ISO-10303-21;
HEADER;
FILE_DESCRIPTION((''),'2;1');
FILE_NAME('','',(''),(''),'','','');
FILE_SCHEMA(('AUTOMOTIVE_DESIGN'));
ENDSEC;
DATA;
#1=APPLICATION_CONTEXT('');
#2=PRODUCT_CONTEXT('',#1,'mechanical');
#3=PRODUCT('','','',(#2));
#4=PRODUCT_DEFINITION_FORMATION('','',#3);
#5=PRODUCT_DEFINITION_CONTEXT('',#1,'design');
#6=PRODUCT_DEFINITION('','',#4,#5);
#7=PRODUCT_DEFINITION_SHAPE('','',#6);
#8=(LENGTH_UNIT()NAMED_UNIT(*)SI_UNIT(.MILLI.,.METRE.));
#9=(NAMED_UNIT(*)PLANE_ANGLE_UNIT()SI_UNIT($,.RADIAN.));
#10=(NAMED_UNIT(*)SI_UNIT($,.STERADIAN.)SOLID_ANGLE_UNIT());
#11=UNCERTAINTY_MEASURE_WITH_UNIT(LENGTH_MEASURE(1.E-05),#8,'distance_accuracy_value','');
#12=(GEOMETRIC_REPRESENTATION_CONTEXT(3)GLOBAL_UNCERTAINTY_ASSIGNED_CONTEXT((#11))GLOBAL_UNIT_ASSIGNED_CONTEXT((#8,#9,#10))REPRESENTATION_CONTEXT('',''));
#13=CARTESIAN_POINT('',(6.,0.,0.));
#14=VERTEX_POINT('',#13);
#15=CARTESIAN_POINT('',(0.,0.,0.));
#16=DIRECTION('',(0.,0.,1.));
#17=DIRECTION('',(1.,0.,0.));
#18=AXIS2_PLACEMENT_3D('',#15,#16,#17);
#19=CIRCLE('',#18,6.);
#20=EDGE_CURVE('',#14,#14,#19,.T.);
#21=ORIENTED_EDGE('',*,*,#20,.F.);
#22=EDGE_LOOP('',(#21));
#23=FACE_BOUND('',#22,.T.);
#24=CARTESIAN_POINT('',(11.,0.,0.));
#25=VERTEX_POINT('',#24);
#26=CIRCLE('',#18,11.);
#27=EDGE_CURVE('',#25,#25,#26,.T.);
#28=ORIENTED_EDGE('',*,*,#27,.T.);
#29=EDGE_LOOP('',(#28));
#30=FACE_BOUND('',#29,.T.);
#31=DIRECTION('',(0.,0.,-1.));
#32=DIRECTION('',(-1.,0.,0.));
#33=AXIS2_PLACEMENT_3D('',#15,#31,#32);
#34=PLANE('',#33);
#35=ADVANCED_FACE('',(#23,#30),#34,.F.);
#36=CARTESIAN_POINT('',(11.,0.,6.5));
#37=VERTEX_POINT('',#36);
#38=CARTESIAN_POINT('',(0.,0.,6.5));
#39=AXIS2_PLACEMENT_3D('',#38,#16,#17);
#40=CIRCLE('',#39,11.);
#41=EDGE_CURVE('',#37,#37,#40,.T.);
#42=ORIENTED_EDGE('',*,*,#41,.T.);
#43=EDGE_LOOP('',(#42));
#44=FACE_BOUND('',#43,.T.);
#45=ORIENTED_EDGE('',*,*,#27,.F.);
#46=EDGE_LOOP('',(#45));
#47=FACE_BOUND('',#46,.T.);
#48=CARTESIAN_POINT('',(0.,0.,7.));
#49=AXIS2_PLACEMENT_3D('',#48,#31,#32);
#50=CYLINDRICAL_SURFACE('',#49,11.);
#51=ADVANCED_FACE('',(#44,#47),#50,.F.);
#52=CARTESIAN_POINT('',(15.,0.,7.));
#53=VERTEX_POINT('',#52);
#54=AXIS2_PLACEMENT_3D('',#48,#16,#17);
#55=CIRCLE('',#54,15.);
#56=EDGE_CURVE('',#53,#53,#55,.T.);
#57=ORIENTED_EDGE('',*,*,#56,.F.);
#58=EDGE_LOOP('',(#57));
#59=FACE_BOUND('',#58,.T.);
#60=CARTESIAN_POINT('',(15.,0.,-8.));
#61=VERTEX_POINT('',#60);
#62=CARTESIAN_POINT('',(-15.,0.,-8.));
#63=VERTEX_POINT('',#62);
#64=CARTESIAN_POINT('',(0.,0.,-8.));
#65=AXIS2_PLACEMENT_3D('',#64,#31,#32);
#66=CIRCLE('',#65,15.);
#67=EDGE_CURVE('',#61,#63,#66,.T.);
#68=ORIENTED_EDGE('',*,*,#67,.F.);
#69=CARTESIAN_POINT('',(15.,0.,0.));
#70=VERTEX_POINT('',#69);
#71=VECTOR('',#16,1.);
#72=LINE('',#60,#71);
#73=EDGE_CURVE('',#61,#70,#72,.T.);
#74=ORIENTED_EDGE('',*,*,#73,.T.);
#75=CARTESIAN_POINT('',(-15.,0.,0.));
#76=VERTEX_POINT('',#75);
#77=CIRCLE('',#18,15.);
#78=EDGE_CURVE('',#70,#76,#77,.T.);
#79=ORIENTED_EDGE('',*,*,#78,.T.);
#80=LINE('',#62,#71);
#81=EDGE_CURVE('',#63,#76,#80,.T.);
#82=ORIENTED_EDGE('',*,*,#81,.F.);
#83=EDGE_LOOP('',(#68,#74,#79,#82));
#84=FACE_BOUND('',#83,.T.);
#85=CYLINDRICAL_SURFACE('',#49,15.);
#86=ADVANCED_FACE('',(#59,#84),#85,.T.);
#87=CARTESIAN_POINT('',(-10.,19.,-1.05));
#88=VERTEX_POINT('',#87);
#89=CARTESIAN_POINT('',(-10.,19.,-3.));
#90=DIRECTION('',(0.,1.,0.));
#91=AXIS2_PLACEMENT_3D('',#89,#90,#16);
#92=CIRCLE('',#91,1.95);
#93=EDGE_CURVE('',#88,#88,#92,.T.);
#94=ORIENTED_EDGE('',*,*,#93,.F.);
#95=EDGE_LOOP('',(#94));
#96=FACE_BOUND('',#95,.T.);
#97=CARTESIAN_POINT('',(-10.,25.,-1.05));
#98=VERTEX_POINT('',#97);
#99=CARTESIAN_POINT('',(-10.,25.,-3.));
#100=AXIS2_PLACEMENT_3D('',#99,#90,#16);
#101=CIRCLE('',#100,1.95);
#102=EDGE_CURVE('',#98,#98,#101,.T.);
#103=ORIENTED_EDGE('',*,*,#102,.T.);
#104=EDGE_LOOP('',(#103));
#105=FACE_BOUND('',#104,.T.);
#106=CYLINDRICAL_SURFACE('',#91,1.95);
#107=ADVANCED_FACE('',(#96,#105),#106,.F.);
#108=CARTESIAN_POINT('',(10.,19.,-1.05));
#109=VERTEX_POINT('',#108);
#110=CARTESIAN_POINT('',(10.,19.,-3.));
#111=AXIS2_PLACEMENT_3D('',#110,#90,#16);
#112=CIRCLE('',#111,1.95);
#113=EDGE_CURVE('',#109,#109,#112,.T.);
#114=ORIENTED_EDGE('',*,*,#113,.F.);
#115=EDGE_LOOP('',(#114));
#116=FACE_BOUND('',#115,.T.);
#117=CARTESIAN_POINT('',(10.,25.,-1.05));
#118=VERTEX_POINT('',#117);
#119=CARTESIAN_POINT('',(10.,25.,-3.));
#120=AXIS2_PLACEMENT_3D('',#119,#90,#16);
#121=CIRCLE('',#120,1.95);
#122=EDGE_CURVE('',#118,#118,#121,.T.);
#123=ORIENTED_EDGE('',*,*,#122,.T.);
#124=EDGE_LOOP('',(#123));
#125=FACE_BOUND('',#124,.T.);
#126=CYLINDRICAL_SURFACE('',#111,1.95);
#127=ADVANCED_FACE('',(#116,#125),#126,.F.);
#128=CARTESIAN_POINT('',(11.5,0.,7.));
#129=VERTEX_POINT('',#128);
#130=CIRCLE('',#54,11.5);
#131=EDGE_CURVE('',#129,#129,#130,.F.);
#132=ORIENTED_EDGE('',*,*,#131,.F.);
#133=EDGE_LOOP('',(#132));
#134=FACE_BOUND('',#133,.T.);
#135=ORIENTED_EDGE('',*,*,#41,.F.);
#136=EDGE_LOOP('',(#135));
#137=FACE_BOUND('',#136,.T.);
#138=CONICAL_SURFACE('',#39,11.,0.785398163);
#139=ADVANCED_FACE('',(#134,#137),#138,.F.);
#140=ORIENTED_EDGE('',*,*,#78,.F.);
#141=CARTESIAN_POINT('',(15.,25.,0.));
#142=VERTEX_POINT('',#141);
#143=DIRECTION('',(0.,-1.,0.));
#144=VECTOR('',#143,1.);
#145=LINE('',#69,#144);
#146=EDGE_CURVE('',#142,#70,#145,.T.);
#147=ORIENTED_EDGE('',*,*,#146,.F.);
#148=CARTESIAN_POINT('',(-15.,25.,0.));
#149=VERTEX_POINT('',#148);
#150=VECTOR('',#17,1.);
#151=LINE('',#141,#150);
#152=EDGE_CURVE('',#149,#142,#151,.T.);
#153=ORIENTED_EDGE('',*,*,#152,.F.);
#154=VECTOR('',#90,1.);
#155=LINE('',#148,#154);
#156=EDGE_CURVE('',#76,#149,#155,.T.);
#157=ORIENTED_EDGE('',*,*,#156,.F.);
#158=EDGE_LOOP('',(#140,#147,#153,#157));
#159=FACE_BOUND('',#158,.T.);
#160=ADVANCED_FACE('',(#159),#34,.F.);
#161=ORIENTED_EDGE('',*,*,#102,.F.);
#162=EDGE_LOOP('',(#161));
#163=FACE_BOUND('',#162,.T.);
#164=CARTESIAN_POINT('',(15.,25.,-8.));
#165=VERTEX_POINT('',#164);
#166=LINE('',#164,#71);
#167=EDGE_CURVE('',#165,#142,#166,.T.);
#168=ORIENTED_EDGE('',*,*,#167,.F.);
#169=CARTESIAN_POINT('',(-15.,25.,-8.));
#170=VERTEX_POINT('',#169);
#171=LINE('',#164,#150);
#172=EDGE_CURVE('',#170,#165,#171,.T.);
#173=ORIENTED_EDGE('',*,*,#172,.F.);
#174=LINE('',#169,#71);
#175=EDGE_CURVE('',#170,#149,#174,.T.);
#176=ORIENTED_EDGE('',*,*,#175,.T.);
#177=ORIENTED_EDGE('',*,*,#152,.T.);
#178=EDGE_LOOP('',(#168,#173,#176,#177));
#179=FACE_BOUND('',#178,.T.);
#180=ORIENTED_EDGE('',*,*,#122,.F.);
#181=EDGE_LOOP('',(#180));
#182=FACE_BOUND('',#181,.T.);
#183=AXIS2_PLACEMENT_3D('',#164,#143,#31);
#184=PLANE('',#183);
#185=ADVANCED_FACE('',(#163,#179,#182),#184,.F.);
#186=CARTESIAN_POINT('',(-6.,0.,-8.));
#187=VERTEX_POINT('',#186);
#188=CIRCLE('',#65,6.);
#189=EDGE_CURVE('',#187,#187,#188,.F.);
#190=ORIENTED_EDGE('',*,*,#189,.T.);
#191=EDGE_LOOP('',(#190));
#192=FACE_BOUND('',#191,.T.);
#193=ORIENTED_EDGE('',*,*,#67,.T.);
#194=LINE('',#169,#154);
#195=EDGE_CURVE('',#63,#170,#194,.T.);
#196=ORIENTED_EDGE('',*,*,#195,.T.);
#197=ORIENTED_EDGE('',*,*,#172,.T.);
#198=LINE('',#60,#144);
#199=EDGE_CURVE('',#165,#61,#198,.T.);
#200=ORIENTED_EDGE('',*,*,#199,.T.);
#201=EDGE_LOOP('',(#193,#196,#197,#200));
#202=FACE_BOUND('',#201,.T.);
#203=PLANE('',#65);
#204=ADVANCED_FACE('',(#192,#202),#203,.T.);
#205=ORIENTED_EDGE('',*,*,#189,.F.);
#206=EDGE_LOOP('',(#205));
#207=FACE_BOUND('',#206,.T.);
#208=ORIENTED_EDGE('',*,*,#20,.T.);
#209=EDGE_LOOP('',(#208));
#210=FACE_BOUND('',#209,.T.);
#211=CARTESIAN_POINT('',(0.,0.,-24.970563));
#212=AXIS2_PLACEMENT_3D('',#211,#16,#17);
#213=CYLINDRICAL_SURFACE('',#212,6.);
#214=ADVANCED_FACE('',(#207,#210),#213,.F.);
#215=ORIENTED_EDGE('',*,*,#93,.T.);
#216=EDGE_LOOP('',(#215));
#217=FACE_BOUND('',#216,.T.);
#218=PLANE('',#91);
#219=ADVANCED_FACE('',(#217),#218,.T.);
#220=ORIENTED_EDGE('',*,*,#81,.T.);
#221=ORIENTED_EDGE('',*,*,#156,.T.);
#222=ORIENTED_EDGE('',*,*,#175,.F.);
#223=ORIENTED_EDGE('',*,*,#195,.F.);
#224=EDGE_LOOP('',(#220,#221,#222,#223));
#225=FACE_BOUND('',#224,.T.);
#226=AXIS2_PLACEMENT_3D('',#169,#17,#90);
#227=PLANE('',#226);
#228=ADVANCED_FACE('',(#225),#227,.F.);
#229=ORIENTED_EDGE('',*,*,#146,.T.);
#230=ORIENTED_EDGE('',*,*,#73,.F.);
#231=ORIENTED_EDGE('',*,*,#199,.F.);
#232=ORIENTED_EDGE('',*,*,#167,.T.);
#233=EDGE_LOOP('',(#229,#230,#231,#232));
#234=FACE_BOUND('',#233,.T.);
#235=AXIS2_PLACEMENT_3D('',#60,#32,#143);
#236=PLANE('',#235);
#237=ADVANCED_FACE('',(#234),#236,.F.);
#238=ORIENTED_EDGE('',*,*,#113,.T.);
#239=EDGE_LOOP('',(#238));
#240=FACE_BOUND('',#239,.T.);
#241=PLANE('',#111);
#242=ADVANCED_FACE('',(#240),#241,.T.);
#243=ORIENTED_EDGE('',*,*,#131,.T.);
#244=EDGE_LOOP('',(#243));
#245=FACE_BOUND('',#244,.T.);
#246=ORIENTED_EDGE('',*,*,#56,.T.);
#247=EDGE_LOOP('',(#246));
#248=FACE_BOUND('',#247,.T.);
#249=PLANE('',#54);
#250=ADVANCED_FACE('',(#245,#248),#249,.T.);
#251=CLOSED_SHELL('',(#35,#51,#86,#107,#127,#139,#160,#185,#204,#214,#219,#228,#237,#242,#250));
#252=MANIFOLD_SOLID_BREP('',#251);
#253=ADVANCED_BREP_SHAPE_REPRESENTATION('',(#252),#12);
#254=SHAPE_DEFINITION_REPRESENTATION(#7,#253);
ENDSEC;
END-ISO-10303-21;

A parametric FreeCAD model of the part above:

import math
import FreeCAD as App
import Part
import Sketcher

V = App.Vector
Q = App.Units.Quantity


def edges_at(feature, points):
    """Names of the edges that pass closest to the given points."""
    edges = feature.Shape.Edges
    near = lambda p: min(range(len(edges)), key=lambda i: edges[i].distToShape(Part.Vertex(*p))[0])
    return sorted({f"Edge{near(p) + 1}" for p in points})

doc = App.newDocument("Part")
body = doc.addObject("PartDesign::Body", "Body")

# Sketch on XY plane
sketch1 = body.newObject("Sketcher::SketchObject", "Sketch")
sketch1.AttachmentSupport = (doc.getObject("XY_Plane"), [""])
sketch1.MapMode = "FlatFace"
sketch1.addGeometry([
    Part.Circle(V(0, 0, 0), V(0, 0, 1), 15),
    Part.Circle(V(0, 0, 0), V(0, 0, 1), 11),
], False)
sketch1.addConstraint([
    Sketcher.Constraint("Coincident", 0, 3, -1, 1),
    Sketcher.Constraint("Coincident", 1, 3, -1, 1),
    Sketcher.Constraint("Diameter", 0, Q("30 mm")),
    Sketcher.Constraint("Diameter", 1, Q("22 mm")),
])
pad1 = body.newObject("PartDesign::Pad", "Pad")
pad1.Profile = sketch1
pad1.Length = 7

# Sketch on XY plane
sketch2 = body.newObject("Sketcher::SketchObject", "Sketch001")
sketch2.AttachmentSupport = (doc.getObject("XY_Plane"), [""])
sketch2.MapMode = "FlatFace"
sketch2.AttachmentOffset = App.Placement(V(0, 0, -8), App.Rotation())
sketch2.addGeometry([
    Part.LineSegment(V(15, 25, 0), V(15, 0, 0)),
    Part.ArcOfCircle(Part.Circle(V(0, 0, 0), V(0, 0, 1), 15), math.radians(180), math.radians(360)),
    Part.LineSegment(V(-15, 0, 0), V(-15, 25, 0)),
    Part.LineSegment(V(-15, 25, 0), V(15, 25, 0)),
], False)
sketch2.addConstraint([
    Sketcher.Constraint("Tangent", 0, 2, 1, 2),
    Sketcher.Constraint("Tangent", 1, 1, 2, 1),
    Sketcher.Constraint("Coincident", 2, 2, 3, 1),
    Sketcher.Constraint("Coincident", 3, 2, 0, 1),
    Sketcher.Constraint("Vertical", 0),
    Sketcher.Constraint("Vertical", 2),
    Sketcher.Constraint("Horizontal", 3),
    Sketcher.Constraint("Coincident", 1, 3, -1, 1),
    Sketcher.Constraint("Radius", 1, Q("15 mm")),
    Sketcher.Constraint("DistanceY", 0, 2, 0, 1, Q("25 mm")),
])
pad2 = body.newObject("PartDesign::Pad", "Pad001")
pad2.Profile = sketch2
pad2.Length = 8

# Sketch on XZ plane
sketch3 = body.newObject("Sketcher::SketchObject", "Sketch002")
sketch3.AttachmentSupport = (doc.getObject("XZ_Plane"), [""])
sketch3.MapMode = "FlatFace"
sketch3.AttachmentOffset = App.Placement(V(0, 0, -25), App.Rotation())
sketch3.addGeometry([
    Part.Circle(V(-10, -3, 0), V(0, 0, 1), 1.9),
    Part.Circle(V(10, -3, 0), V(0, 0, 1), 1.9),
], False)
sketch3.addConstraint([
    Sketcher.Constraint("Equal", 0, 1),
    Sketcher.Constraint("Symmetric", 0, 3, 1, 3, -2),
    Sketcher.Constraint("Diameter", 0, Q("3.9 mm")),
    Sketcher.Constraint("DistanceX", 0, 3, -1, 1, Q("10 mm")),
    Sketcher.Constraint("DistanceY", 0, 3, -1, 1, Q("3 mm")),
])
pocket1 = body.newObject("PartDesign::Pocket", "Pocket")
pocket1.Profile = sketch3
pocket1.Length = 6
pocket1.Reversed = True

# Sketch on XY plane
sketch4 = body.newObject("Sketcher::SketchObject", "Sketch003")
sketch4.AttachmentSupport = (doc.getObject("XY_Plane"), [""])
sketch4.MapMode = "FlatFace"
sketch4.addGeometry(Part.Circle(V(0, 0, 0), V(0, 0, 1), 6), False)
sketch4.addConstraint([
    Sketcher.Constraint("Coincident", 0, 3, -1, 1),
    Sketcher.Constraint("Diameter", 0, Q("12 mm")),
])
pocket2 = body.newObject("PartDesign::Pocket", "Pocket001")
pocket2.Profile = sketch4
pocket2.Length = 8
doc.recompute()

chamfer = body.newObject("PartDesign::Chamfer", "Chamfer")
chamfer.Base = (pocket2, edges_at(pocket2, [(-11, 0, 7)]))
chamfer.Size = 0.5

doc.recompute()
